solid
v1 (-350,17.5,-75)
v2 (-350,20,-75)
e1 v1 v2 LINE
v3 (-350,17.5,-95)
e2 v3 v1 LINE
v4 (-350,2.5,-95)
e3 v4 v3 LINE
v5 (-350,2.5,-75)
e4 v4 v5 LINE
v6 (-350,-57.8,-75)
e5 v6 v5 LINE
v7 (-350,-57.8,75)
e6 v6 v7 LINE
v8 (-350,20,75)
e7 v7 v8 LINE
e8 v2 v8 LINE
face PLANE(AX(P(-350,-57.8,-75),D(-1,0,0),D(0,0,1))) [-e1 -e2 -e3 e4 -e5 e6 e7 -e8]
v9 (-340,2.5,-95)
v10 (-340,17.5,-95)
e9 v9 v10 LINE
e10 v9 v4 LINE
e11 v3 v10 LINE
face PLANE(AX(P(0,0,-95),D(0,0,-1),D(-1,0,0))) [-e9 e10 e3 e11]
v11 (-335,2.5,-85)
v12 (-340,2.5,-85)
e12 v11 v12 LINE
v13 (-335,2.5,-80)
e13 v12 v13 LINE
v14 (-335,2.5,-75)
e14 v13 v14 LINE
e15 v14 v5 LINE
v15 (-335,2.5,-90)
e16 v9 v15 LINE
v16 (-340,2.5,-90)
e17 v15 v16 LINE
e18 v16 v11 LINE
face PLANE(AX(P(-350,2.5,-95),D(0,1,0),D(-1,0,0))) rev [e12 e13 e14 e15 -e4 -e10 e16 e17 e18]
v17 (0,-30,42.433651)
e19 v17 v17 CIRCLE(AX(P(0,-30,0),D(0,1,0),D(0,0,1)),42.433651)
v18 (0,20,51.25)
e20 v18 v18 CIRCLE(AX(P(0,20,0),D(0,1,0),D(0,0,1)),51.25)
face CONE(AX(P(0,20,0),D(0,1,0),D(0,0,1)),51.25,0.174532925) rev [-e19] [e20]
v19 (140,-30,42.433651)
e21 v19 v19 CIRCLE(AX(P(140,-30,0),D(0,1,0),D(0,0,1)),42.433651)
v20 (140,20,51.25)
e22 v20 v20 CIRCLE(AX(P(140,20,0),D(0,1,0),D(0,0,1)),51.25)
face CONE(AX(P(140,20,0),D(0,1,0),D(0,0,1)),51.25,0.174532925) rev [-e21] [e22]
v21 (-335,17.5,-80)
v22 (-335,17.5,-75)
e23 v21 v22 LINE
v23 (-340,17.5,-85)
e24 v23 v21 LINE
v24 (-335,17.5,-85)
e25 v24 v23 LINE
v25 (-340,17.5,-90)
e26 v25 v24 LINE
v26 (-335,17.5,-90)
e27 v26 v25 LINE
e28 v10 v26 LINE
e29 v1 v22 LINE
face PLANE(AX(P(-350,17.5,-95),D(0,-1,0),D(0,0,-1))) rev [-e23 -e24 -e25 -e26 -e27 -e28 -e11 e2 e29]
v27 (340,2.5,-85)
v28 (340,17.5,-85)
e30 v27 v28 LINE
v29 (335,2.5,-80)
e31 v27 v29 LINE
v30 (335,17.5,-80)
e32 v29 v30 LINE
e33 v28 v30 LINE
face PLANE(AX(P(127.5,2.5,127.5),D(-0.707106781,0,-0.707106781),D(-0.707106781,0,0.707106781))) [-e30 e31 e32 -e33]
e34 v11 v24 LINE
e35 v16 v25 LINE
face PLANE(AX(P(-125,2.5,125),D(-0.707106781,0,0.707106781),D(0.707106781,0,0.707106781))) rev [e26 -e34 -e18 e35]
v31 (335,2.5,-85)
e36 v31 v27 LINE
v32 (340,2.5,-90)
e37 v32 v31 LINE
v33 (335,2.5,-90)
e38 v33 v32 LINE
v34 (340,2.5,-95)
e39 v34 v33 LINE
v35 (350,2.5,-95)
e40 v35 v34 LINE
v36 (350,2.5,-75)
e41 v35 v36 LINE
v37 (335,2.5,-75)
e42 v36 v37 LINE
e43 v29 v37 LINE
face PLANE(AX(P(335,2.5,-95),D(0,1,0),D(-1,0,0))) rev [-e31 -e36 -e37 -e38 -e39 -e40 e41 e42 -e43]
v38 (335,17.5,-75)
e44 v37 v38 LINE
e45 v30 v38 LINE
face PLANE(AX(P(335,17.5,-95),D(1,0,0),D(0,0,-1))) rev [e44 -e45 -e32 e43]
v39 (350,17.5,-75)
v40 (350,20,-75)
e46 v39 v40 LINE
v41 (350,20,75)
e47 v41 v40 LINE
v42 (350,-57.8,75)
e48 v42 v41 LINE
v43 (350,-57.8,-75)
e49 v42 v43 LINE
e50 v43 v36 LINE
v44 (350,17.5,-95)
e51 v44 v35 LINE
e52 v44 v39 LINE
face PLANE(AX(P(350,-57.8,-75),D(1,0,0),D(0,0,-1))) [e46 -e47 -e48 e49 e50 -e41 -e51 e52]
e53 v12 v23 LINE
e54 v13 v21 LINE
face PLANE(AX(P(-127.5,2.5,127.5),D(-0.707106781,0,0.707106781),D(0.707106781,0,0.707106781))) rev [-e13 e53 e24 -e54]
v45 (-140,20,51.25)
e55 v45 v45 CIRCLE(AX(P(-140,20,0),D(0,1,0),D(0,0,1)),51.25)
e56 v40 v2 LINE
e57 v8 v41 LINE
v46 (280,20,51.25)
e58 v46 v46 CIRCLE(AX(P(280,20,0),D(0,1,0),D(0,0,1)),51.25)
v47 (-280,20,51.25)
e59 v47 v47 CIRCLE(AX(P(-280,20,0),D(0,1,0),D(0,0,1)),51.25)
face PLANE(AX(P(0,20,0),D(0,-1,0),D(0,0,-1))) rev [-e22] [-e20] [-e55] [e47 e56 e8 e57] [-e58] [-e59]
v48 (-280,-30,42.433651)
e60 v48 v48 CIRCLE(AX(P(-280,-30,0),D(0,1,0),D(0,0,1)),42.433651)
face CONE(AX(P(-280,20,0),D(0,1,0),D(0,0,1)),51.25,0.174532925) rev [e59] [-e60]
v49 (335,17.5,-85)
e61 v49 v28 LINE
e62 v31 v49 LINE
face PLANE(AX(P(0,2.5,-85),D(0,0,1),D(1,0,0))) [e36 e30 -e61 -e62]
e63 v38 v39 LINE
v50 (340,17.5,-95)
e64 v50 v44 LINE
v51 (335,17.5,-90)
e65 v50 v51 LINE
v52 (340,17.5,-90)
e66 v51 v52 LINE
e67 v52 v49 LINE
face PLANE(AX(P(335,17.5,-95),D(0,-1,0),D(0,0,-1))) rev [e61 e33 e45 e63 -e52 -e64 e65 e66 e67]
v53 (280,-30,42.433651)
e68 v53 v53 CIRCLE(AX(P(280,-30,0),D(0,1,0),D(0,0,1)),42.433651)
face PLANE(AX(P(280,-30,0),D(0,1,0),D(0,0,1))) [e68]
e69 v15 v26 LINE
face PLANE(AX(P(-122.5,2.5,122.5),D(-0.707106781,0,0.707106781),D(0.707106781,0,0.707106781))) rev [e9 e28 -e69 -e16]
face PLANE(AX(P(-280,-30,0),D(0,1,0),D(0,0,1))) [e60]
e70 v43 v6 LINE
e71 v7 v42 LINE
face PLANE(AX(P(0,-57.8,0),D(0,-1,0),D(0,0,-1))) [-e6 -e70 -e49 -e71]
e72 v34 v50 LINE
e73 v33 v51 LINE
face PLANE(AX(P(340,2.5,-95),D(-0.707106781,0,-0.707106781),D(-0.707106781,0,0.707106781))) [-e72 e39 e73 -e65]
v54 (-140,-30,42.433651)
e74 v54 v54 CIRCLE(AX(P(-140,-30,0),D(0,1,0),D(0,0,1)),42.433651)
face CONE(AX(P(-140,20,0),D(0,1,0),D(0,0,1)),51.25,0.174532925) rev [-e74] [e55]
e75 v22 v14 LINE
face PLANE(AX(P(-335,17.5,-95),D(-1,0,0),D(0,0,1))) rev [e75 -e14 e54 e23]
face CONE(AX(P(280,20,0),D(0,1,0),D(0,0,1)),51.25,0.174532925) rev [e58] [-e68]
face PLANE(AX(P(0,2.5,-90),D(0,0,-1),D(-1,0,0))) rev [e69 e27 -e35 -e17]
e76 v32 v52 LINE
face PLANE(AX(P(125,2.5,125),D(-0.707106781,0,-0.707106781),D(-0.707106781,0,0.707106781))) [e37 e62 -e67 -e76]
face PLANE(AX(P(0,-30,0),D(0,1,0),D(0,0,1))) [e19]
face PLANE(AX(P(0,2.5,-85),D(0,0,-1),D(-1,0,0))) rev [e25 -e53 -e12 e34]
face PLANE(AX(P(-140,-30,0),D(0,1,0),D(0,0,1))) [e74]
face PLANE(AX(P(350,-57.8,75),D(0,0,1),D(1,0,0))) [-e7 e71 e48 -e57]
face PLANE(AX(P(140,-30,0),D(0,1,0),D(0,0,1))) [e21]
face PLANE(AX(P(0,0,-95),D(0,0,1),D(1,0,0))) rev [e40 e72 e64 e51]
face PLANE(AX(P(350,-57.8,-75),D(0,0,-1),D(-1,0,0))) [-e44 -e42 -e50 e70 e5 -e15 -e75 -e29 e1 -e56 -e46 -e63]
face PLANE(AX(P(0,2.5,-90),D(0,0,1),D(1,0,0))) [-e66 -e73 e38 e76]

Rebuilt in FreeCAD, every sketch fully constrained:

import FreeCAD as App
import Part
import Sketcher

doc = App.newDocument("Part")
body = doc.addObject("PartDesign::Body", "Body")

# Sketch on XZ plane
sketch1 = doc.addObject("Sketcher::SketchObject", "Sketch")
body.addObject(sketch1)
sketch1.AttachmentSupport = (doc.XZ_Plane, [""])
sketch1.MapMode = "FlatFace"
sketch1.addGeometry([
    Part.LineSegment(App.Vector(-350, -75, 0), App.Vector(-350, 75, 0)),
    Part.LineSegment(App.Vector(-350, 75, 0), App.Vector(350, 75, 0)),
    Part.LineSegment(App.Vector(350, 75, 0), App.Vector(350, -75, 0)),
    Part.LineSegment(App.Vector(350, -75, 0), App.Vector(-350, -75, 0)),
], False)
sketch1.addConstraint([
    Sketcher.Constraint("Coincident", 0, 2, 1, 1),
    Sketcher.Constraint("Coincident", 1, 2, 2, 1),
    Sketcher.Constraint("Coincident", 2, 2, 3, 1),
    Sketcher.Constraint("Coincident", 3, 2, 0, 1),
    Sketcher.Constraint("Vertical", 0),
    Sketcher.Constraint("Horizontal", 1),
    Sketcher.Constraint("Vertical", 2),
    Sketcher.Constraint("Horizontal", 3),
    Sketcher.Constraint("Symmetric", 0, 2, 2, 2, -1, 1),
    Sketcher.Constraint("DistanceX", 1, 1, 1, 2, 700.0),
    Sketcher.Constraint("DistanceY", 0, 1, 0, 2, 150.0),
])
pad1 = doc.addObject("PartDesign::Pad", "Pad")
body.addObject(pad1)
pad1.Profile = sketch1
pad1.Type = "TwoLengths"
pad1.Length = 20
pad1.Length2 = 57.8
pad1.Reversed = True

# Sketch on XY plane
sketch2 = doc.addObject("Sketcher::SketchObject", "Sketch001")
body.addObject(sketch2)
sketch2.AttachmentSupport = (doc.XY_Plane, [""])
sketch2.MapMode = "FlatFace"
sketch2.AttachmentOffset = App.Placement(App.Vector(0, 0, -75), App.Rotation())
sketch2.addGeometry([
    Part.LineSegment(App.Vector(350, 18, 0), App.Vector(350, 2, 0)),  # 0
    Part.LineSegment(App.Vector(350, 2, 0), App.Vector(335, 2, 0)),  # 1
    Part.LineSegment(App.Vector(335, 2, 0), App.Vector(335, 18, 0)),  # 2
    Part.LineSegment(App.Vector(335, 18, 0), App.Vector(350, 18, 0)),  # 3
    Part.LineSegment(App.Vector(-335, 18, 0), App.Vector(-335, 2, 0)),  # 4
    Part.LineSegment(App.Vector(-335, 2, 0), App.Vector(-350, 2, 0)),  # 5
    Part.LineSegment(App.Vector(-350, 2, 0), App.Vector(-350, 18, 0)),  # 6
    Part.LineSegment(App.Vector(-350, 18, 0), App.Vector(-335, 18, 0)),  # 7
], False)
sketch2.addConstraint([
    Sketcher.Constraint("Coincident", 0, 2, 1, 1),
    Sketcher.Constraint("Coincident", 1, 2, 2, 1),
    Sketcher.Constraint("Coincident", 2, 2, 3, 1),
    Sketcher.Constraint("Coincident", 3, 2, 0, 1),
    Sketcher.Constraint("Coincident", 4, 2, 5, 1),
    Sketcher.Constraint("Coincident", 5, 2, 6, 1),
    Sketcher.Constraint("Coincident", 6, 2, 7, 1),
    Sketcher.Constraint("Coincident", 7, 2, 4, 1),
    Sketcher.Constraint("Vertical", 0),
    Sketcher.Constraint("Horizontal", 1),
    Sketcher.Constraint("Vertical", 2),
    Sketcher.Constraint("Horizontal", 3),
    Sketcher.Constraint("Vertical", 4),
    Sketcher.Constraint("Horizontal", 5),
    Sketcher.Constraint("Vertical", 6),
    Sketcher.Constraint("Horizontal", 7),
    Sketcher.Constraint("Symmetric", 1, 2, 4, 2, -2),
    Sketcher.Constraint("Symmetric", 3, 2, 6, 2, -2),
    Sketcher.Constraint("Equal", 7, 0),
    Sketcher.Constraint("DistanceX", 1, 2, 1, 1, 15.0),
    Sketcher.Constraint("DistanceX", -1, 1, 0, 2, 350.0),
    Sketcher.Constraint("DistanceY", -1, 1, 0, 2, 2.5),
])
pad2 = doc.addObject("PartDesign::Pad", "Pad001")
body.addObject(pad2)
pad2.Profile = sketch2
pad2.Length = 20
pad2.Reversed = True

# Sketch on XZ plane
sketch3 = doc.addObject("Sketcher::SketchObject", "Sketch002")
body.addObject(sketch3)
sketch3.AttachmentSupport = (doc.XZ_Plane, [""])
sketch3.MapMode = "FlatFace"
sketch3.AttachmentOffset = App.Placement(App.Vector(0, 0, -17.5), App.Rotation())
sketch3.addGeometry([
    Part.LineSegment(App.Vector(340, -90, 0), App.Vector(335, -90, 0)),  # 0
    Part.LineSegment(App.Vector(335, -90, 0), App.Vector(335, -85, 0)),  # 1
    Part.LineSegment(App.Vector(335, -85, 0), App.Vector(340, -90, 0)),  # 2
    Part.LineSegment(App.Vector(340, -85, 0), App.Vector(335, -85, 0)),  # 3
    Part.LineSegment(App.Vector(335, -85, 0), App.Vector(335, -80, 0)),  # 4
    Part.LineSegment(App.Vector(335, -80, 0), App.Vector(340, -85, 0)),  # 5
    Part.LineSegment(App.Vector(335, -95, 0), App.Vector(335, -90, 0)),  # 6
    Part.LineSegment(App.Vector(335, -90, 0), App.Vector(340, -95, 0)),  # 7
    Part.LineSegment(App.Vector(340, -95, 0), App.Vector(335, -95, 0)),  # 8
], False)
sketch3.addConstraint([
    Sketcher.Constraint("Coincident", 0, 2, 1, 1),
    Sketcher.Constraint("Coincident", 1, 2, 2, 1),
    Sketcher.Constraint("Coincident", 2, 2, 0, 1),
    Sketcher.Constraint("Coincident", 3, 2, 4, 1),
    Sketcher.Constraint("Coincident", 4, 2, 5, 1),
    Sketcher.Constraint("Coincident", 5, 2, 3, 1),
    Sketcher.Constraint("Coincident", 6, 2, 7, 1),
    Sketcher.Constraint("Coincident", 7, 2, 8, 1),
    Sketcher.Constraint("Coincident", 8, 2, 6, 1),
    Sketcher.Constraint("Horizontal", 0),
    Sketcher.Constraint("Vertical", 1),
    Sketcher.Constraint("Horizontal", 3),
    Sketcher.Constraint("Vertical", 4),
    Sketcher.Constraint("Vertical", 6),
    Sketcher.Constraint("Horizontal", 8),
    Sketcher.Constraint("Coincident", 3, 2, 1, 2),
    Sketcher.Constraint("Coincident", 6, 2, 0, 2),
    Sketcher.Constraint("Parallel", 2, 5),
    Sketcher.Constraint("Parallel", 5, 7),
    Sketcher.Constraint("Vertical", 2, 2, 5, 2),
    Sketcher.Constraint("Vertical", 5, 2, 7, 2),
    Sketcher.Constraint("Equal", 8, 1),
    Sketcher.Constraint("DistanceX", 0, 2, 0, 1, 5.0),
    Sketcher.Constraint("DistanceX", -1, 1, 0, 2, 335.0),
    Sketcher.Constraint("DistanceY", 0, 2, -1, 1, 90.0),
])
pocket1 = doc.addObject("PartDesign::Pocket", "Pocket")
body.addObject(pocket1)
pocket1.Profile = sketch3
pocket1.Length = 15
pocket1.Reversed = True

# Sketch on XZ plane
sketch4 = doc.addObject("Sketcher::SketchObject", "Sketch003")
body.addObject(sketch4)
sketch4.AttachmentSupport = (doc.XZ_Plane, [""])
sketch4.MapMode = "FlatFace"
sketch4.AttachmentOffset = App.Placement(App.Vector(0, 0, -17.5), App.Rotation())
sketch4.addGeometry([
    Part.LineSegment(App.Vector(-335, -85, 0), App.Vector(-335, -90, 0)),  # 0
    Part.LineSegment(App.Vector(-335, -90, 0), App.Vector(-340, -90, 0)),  # 1
    Part.LineSegment(App.Vector(-340, -90, 0), App.Vector(-335, -85, 0)),  # 2
    Part.LineSegment(App.Vector(-335, -90, 0), App.Vector(-335, -95, 0)),  # 3
    Part.LineSegment(App.Vector(-335, -95, 0), App.Vector(-340, -95, 0)),  # 4
    Part.LineSegment(App.Vector(-340, -95, 0), App.Vector(-335, -90, 0)),  # 5
    Part.LineSegment(App.Vector(-335, -80, 0), App.Vector(-335, -85, 0)),  # 6
    Part.LineSegment(App.Vector(-335, -85, 0), App.Vector(-340, -85, 0)),  # 7
    Part.LineSegment(App.Vector(-340, -85, 0), App.Vector(-335, -80, 0)),  # 8
], False)
sketch4.addConstraint([
    Sketcher.Constraint("Coincident", 0, 2, 1, 1),
    Sketcher.Constraint("Coincident", 1, 2, 2, 1),
    Sketcher.Constraint("Coincident", 2, 2, 0, 1),
    Sketcher.Constraint("Coincident", 3, 2, 4, 1),
    Sketcher.Constraint("Coincident", 4, 2, 5, 1),
    Sketcher.Constraint("Coincident", 5, 2, 3, 1),
    Sketcher.Constraint("Coincident", 6, 2, 7, 1),
    Sketcher.Constraint("Coincident", 7, 2, 8, 1),
    Sketcher.Constraint("Coincident", 8, 2, 6, 1),
    Sketcher.Constraint("Vertical", 0),
    Sketcher.Constraint("Horizontal", 1),
    Sketcher.Constraint("Vertical", 3),
    Sketcher.Constraint("Horizontal", 4),
    Sketcher.Constraint("Vertical", 6),
    Sketcher.Constraint("Horizontal", 7),
    Sketcher.Constraint("Coincident", 5, 2, 0, 2),
    Sketcher.Constraint("Coincident", 6, 2, 2, 2),
    Sketcher.Constraint("Parallel", 2, 5),
    Sketcher.Constraint("Parallel", 5, 8),
    Sketcher.Constraint("Vertical", 1, 2, 4, 2),
    Sketcher.Constraint("Vertical", 4, 2, 7, 2),
    Sketcher.Constraint("Equal", 7, 0),
    Sketcher.Constraint("DistanceX", 1, 2, 1, 1, 5.0),
    Sketcher.Constraint("DistanceX", 0, 2, -1, 1, 335.0),
    Sketcher.Constraint("DistanceY", 0, 2, -1, 1, 90.0),
])
pocket2 = doc.addObject("PartDesign::Pocket", "Pocket001")
body.addObject(pocket2)
pocket2.Profile = sketch4
pocket2.Length = 15
pocket2.Reversed = True

# Sketch on XZ plane
sketch5 = doc.addObject("Sketcher::SketchObject", "Sketch004")
body.addObject(sketch5)
sketch5.AttachmentSupport = (doc.XZ_Plane, [""])
sketch5.MapMode = "FlatFace"
sketch5.AttachmentOffset = App.Placement(App.Vector(0, 0, -20), App.Rotation())
sketch5.addGeometry(Part.Circle(App.Vector(0, 0, 0), App.Vector(0, 0, 1), 51), False)
sketch5.addConstraint([
    Sketcher.Constraint("Coincident", 0, 3, -1, 1),
    Sketcher.Constraint("Diameter", 0, 102.5),
])
pocket3 = doc.addObject("PartDesign::Pocket", "Pocket002")
body.addObject(pocket3)
pocket3.Profile = sketch5
pocket3.Length = 50
pocket3.Reversed = True
pocket3.TaperAngle = -10

# Sketch on XZ plane
sketch6 = doc.addObject("Sketcher::SketchObject", "Sketch005")
body.addObject(sketch6)
sketch6.AttachmentSupport = (doc.XZ_Plane, [""])
sketch6.MapMode = "FlatFace"
sketch6.AttachmentOffset = App.Placement(App.Vector(0, 0, -20), App.Rotation())
sketch6.addGeometry(Part.Circle(App.Vector(140, 0, 0), App.Vector(0, 0, 1), 51), False)
sketch6.addConstraint([
    Sketcher.Constraint("PointOnObject", 0, 3, -1),
    Sketcher.Constraint("Diameter", 0, 102.5),
    Sketcher.Constraint("DistanceX", -1, 1, 0, 3, 140.0),
])
pocket4 = doc.addObject("PartDesign::Pocket", "Pocket003")
body.addObject(pocket4)
pocket4.Profile = sketch6
pocket4.Length = 50
pocket4.Reversed = True
pocket4.TaperAngle = -10

# Sketch on XZ plane
sketch7 = doc.addObject("Sketcher::SketchObject", "Sketch006")
body.addObject(sketch7)
sketch7.AttachmentSupport = (doc.XZ_Plane, [""])
sketch7.MapMode = "FlatFace"
sketch7.AttachmentOffset = App.Placement(App.Vector(0, 0, -20), App.Rotation())
sketch7.addGeometry(Part.Circle(App.Vector(280, 0, 0), App.Vector(0, 0, 1), 51), False)
sketch7.addConstraint([
    Sketcher.Constraint("PointOnObject", 0, 3, -1),
    Sketcher.Constraint("Diameter", 0, 102.5),
    Sketcher.Constraint("DistanceX", -1, 1, 0, 3, 280.0),
])
pocket5 = doc.addObject("PartDesign::Pocket", "Pocket004")
body.addObject(pocket5)
pocket5.Profile = sketch7
pocket5.Length = 50
pocket5.Reversed = True
pocket5.TaperAngle = -10

# Sketch on XZ plane
sketch8 = doc.addObject("Sketcher::SketchObject", "Sketch007")
body.addObject(sketch8)
sketch8.AttachmentSupport = (doc.XZ_Plane, [""])
sketch8.MapMode = "FlatFace"
sketch8.AttachmentOffset = App.Placement(App.Vector(0, 0, -20), App.Rotation())
sketch8.addGeometry(Part.Circle(App.Vector(-140, 0, 0), App.Vector(0, 0, 1), 51), False)
sketch8.addConstraint([
    Sketcher.Constraint("PointOnObject", 0, 3, -1),
    Sketcher.Constraint("Diameter", 0, 102.5),
    Sketcher.Constraint("DistanceX", 0, 3, -1, 1, 140.0),
])
pocket6 = doc.addObject("PartDesign::Pocket", "Pocket005")
body.addObject(pocket6)
pocket6.Profile = sketch8
pocket6.Length = 50
pocket6.Reversed = True
pocket6.TaperAngle = -10

# Sketch on XZ plane
sketch9 = doc.addObject("Sketcher::SketchObject", "Sketch008")
body.addObject(sketch9)
sketch9.AttachmentSupport = (doc.XZ_Plane, [""])
sketch9.MapMode = "FlatFace"
sketch9.AttachmentOffset = App.Placement(App.Vector(0, 0, -20), App.Rotation())
sketch9.addGeometry(Part.Circle(App.Vector(-280, 0, 0), App.Vector(0, 0, 1), 51), False)
sketch9.addConstraint([
    Sketcher.Constraint("PointOnObject", 0, 3, -1),
    Sketcher.Constraint("Diameter", 0, 102.5),
    Sketcher.Constraint("DistanceX", 0, 3, -1, 1, 280.0),
])
pocket7 = doc.addObject("PartDesign::Pocket", "Pocket006")
body.addObject(pocket7)
pocket7.Profile = sketch9
pocket7.Length = 50
pocket7.Reversed = True
pocket7.TaperAngle = -10

doc.recompute()
